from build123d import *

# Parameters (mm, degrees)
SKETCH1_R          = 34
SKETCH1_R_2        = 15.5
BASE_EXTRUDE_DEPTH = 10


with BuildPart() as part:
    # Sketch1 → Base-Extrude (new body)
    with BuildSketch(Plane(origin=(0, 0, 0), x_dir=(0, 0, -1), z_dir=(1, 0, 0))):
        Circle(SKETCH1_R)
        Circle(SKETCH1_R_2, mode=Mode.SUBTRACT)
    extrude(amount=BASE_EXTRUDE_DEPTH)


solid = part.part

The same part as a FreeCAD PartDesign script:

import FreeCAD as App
import Part
import Sketcher
Q = App.Units.Quantity

doc = App.newDocument("Part")
body = doc.addObject("PartDesign::Body", "Body")

# Sketch on YZ plane
sketch1 = doc.addObject("Sketcher::SketchObject", "Sketch")
body.addObject(sketch1)
sketch1.AttachmentSupport = (doc.YZ_Plane, [""])
sketch1.MapMode = "FlatFace"
sketch1.addGeometry(Part.Circle(App.Vector(0, 0, 0), App.Vector(0, 0, 1), 34), False)
sketch1.addGeometry(Part.Circle(App.Vector(0, 0, 0), App.Vector(0, 0, 1), 16), False)
sketch1.addConstraint(Sketcher.Constraint("Coincident", 0, 3, -1, 1))
sketch1.addConstraint(Sketcher.Constraint("Coincident", 1, 3, -1, 1))
sketch1.addConstraint(Sketcher.Constraint("Diameter", 0, Q("68 mm")))
sketch1.addConstraint(Sketcher.Constraint("Diameter", 1, Q("31 mm")))
pad1 = doc.addObject("PartDesign::Pad", "Pad")
body.addObject(pad1)
pad1.Profile = sketch1
pad1.Length = 10

doc.recompute()
